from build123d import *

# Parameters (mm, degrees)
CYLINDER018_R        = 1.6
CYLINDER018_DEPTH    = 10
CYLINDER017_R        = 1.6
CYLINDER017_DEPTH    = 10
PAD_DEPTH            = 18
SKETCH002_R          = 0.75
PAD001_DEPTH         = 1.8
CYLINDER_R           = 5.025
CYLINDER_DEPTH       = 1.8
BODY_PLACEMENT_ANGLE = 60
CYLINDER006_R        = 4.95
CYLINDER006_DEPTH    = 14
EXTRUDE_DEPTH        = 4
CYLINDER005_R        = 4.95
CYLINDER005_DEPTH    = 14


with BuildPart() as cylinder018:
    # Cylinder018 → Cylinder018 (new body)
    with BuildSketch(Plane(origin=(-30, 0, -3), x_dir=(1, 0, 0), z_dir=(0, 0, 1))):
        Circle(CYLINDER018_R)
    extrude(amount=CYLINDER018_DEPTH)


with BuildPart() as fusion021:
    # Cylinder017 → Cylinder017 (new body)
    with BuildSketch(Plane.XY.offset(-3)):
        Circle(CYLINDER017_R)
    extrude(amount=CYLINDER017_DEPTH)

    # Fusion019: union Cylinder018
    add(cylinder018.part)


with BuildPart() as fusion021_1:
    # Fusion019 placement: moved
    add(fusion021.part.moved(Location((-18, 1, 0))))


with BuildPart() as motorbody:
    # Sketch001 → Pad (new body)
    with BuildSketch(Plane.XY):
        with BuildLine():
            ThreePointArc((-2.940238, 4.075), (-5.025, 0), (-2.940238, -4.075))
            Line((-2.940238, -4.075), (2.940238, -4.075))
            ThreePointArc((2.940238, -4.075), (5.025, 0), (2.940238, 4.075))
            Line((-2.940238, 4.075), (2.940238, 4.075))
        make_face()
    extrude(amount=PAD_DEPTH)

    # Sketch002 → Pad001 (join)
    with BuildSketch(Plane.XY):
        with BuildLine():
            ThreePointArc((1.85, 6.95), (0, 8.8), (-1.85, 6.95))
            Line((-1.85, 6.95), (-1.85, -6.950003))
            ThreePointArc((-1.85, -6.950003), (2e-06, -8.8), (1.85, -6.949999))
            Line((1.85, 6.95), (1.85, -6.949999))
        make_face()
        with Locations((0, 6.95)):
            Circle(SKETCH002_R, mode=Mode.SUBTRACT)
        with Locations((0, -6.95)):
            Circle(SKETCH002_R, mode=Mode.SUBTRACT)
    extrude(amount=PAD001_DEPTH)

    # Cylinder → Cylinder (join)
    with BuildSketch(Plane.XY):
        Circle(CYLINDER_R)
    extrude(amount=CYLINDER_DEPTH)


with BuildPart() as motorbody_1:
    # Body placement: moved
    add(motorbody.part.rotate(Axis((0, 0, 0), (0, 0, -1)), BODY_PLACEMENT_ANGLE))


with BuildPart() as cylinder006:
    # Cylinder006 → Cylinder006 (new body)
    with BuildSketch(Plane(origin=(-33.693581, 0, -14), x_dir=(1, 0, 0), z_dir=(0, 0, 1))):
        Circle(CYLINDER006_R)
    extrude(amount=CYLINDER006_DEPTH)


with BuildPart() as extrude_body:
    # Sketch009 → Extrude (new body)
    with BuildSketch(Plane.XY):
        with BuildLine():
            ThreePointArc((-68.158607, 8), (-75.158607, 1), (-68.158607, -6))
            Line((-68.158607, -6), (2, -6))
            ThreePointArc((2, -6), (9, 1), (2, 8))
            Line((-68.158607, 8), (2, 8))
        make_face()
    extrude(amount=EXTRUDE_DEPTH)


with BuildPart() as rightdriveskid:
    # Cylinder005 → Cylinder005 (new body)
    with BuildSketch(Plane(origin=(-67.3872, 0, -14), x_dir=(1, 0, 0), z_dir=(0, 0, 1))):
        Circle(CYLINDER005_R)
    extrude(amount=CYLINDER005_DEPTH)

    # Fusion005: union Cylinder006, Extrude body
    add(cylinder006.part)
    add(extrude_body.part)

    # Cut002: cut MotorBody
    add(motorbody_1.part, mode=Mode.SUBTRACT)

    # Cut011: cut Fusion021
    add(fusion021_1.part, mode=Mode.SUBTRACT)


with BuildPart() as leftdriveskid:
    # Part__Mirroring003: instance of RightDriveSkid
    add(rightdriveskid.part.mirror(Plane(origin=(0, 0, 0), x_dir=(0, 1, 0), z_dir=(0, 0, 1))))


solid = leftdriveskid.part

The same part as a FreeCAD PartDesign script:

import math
import FreeCAD as App
import Part
import Sketcher

V = App.Vector

doc = App.newDocument("Part")
body = doc.addObject("PartDesign::Body", "Body")

# Sketch on XY plane
sketch1 = doc.addObject("Sketcher::SketchObject", "Sketch")
body.addObject(sketch1)
sketch1.AttachmentSupport = (doc.XY_Plane, [""])
sketch1.MapMode = "FlatFace"
sketch1.AttachmentOffset = App.Placement(V(0, 0, -3), App.Rotation())
sketch1.addGeometry(Part.Circle(V(-30, 0, 0), V(0, 0, 1), 1.6), False)
sketch1.addConstraint([
    Sketcher.Constraint("PointOnObject", 0, 3, -1),
    Sketcher.Constraint("Diameter", 0, 3.2),
    Sketcher.Constraint("DistanceX", 0, 3, -1, 1, 30.0),
])
pad1 = doc.addObject("PartDesign::Pad", "Pad")
body.addObject(pad1)
pad1.Profile = sketch1
pad1.Length = 10
body2 = doc.addObject("PartDesign::Body", "Body001")
body2.AllowCompound = True

# Sketch on XY plane
sketch2 = doc.addObject("Sketcher::SketchObject", "Sketch001")
body2.addObject(sketch2)
sketch2.AttachmentSupport = (doc.getObject("XY_Plane001"), [""])
sketch2.MapMode = "FlatFace"
sketch2.AttachmentOffset = App.Placement(V(0, 0, -3), App.Rotation())
sketch2.addGeometry(Part.Circle(V(0, 0, 0), V(0, 0, 1), 1.6), False)
sketch2.addConstraint([
    Sketcher.Constraint("Coincident", 0, 3, -1, 1),
    Sketcher.Constraint("Diameter", 0, 3.2),
])
pad2 = doc.addObject("PartDesign::Pad", "Pad001")
body2.addObject(pad2)
pad2.Profile = sketch2
pad2.Length = 10
doc.recompute()

boolean = doc.addObject("PartDesign::Boolean", "Boolean")
body2.addObject(boolean)
boolean.Type = "Fuse"
boolean.addObjects([body])
body3 = doc.addObject("PartDesign::Body", "Body002")
body3.AllowCompound = True
doc.recompute()

body2.Placement = App.Placement(V(-18, 1, 0), App.Rotation(V(0, 0, 1), 0))
boolean2 = doc.addObject("PartDesign::Boolean", "Boolean001")
body3.addObject(boolean2)
boolean2.Type = "Fuse"
boolean2.addObjects([body2])
body4 = doc.addObject("PartDesign::Body", "Body003")

# Sketch on XY plane
sketch3 = doc.addObject("Sketcher::SketchObject", "Sketch002")
body4.addObject(sketch3)
sketch3.AttachmentSupport = (doc.getObject("XY_Plane003"), [""])
sketch3.MapMode = "FlatFace"
sketch3.addGeometry([
    Part.ArcOfCircle(Part.Circle(V(0, 0, 0), V(0, 0, 1), 5), math.radians(126), math.radians(234)),
    Part.LineSegment(V(-3, -4, 0), V(3, -4, 0)),
    Part.ArcOfCircle(Part.Circle(V(0, 0, 0), V(0, 0, 1), 5), math.radians(-54), math.radians(54)),
    Part.LineSegment(V(3, 4, 0), V(-3, 4, 0)),
], False)
sketch3.addConstraint([
    Sketcher.Constraint("Coincident", 0, 2, 1, 1),
    Sketcher.Constraint("Coincident", 1, 2, 2, 1),
    Sketcher.Constraint("Coincident", 2, 2, 3, 1),
    Sketcher.Constraint("Coincident", 3, 2, 0, 1),
    Sketcher.Constraint("Horizontal", 1),
    Sketcher.Constraint("Horizontal", 3),
    Sketcher.Constraint("Coincident", 0, 3, -1, 1),
    Sketcher.Constraint("Coincident", 2, 3, -1, 1),
    Sketcher.Constraint("Equal", 0, 2),
    Sketcher.Constraint("Vertical", 1, 2, 2, 2),
    Sketcher.Constraint("Radius", 0, 5.025),
    Sketcher.Constraint("DistanceY", 1, 2, 2, 2, 8.15),
])
pad3 = doc.addObject("PartDesign::Pad", "Pad002")
body4.addObject(pad3)
pad3.Profile = sketch3
pad3.Length = 18

# Sketch on XY plane
sketch4 = doc.addObject("Sketcher::SketchObject", "Sketch003")
body4.addObject(sketch4)
sketch4.AttachmentSupport = (doc.getObject("XY_Plane003"), [""])
sketch4.MapMode = "FlatFace"
sketch4.addGeometry([
    Part.ArcOfCircle(Part.Circle(V(0, 7, 0), V(0, 0, 1), 1.9), math.radians(0), math.radians(180)),  # 0
    Part.LineSegment(V(-1.9, 7, 0), V(-1.9, -7, 0)),  # 1
    Part.ArcOfCircle(Part.Circle(V(0, -7, 0), V(0, 0, 1), 1.9), math.radians(-180), math.radians(0)),  # 2
    Part.LineSegment(V(1.9, -6.9, 0), V(1.9, 7, 0)),  # 3
    Part.Circle(V(0, -7, 0), V(0, 0, 1), 0.8),  # 4
    Part.Circle(V(0, 7, 0), V(0, 0, 1), 0.8),  # 5
], False)
sketch4.addConstraint([
    Sketcher.Constraint("Tangent", 0, 2, 1, 1),
    Sketcher.Constraint("Tangent", 1, 2, 2, 1),
    Sketcher.Constraint("Tangent", 2, 2, 3, 1),
    Sketcher.Constraint("Tangent", 3, 2, 0, 1),
    Sketcher.Constraint("Vertical", 1),
    Sketcher.Constraint("Vertical", 3),
    Sketcher.Constraint("Coincident", 4, 3, 2, 3),
    Sketcher.Constraint("Coincident", 5, 3, 0, 3),
    Sketcher.Constraint("Equal", 4, 5),
    Sketcher.Constraint("Symmetric", 0, 3, 2, 3, -1, 1),
    Sketcher.Constraint("Diameter", 4, 1.5),
    Sketcher.Constraint("Radius", 0, 1.85),
    Sketcher.Constraint("DistanceY", 3, 1, 3, 2, 13.899999),
])
pad4 = doc.addObject("PartDesign::Pad", "Pad003")
body4.addObject(pad4)
pad4.Profile = sketch4
pad4.Length = 1.8

# Sketch on XY plane
sketch5 = doc.addObject("Sketcher::SketchObject", "Sketch004")
body4.addObject(sketch5)
sketch5.AttachmentSupport = (doc.getObject("XY_Plane003"), [""])
sketch5.MapMode = "FlatFace"
sketch5.addGeometry(Part.Circle(V(0, 0, 0), V(0, 0, 1), 5), False)
sketch5.addConstraint([
    Sketcher.Constraint("Coincident", 0, 3, -1, 1),
    Sketcher.Constraint("Diameter", 0, 10.05),
])
pad5 = doc.addObject("PartDesign::Pad", "Pad004")
body4.addObject(pad5)
pad5.Profile = sketch5
pad5.Length = 1.8
body5 = doc.addObject("PartDesign::Body", "Body004")
doc.recompute()

body4.Placement = App.Placement(V(0, 0, 0), App.Rotation(V(0, 0, -1), 60))
boolean3 = doc.addObject("PartDesign::Boolean", "Boolean002")
body5.addObject(boolean3)
boolean3.Type = "Fuse"
boolean3.addObjects([body4])
body6 = doc.addObject("PartDesign::Body", "Body005")

# Sketch on XY plane
sketch6 = doc.addObject("Sketcher::SketchObject", "Sketch005")
body6.addObject(sketch6)
sketch6.AttachmentSupport = (doc.getObject("XY_Plane005"), [""])
sketch6.MapMode = "FlatFace"
sketch6.AttachmentOffset = App.Placement(V(0, 0, -14), App.Rotation())
sketch6.addGeometry(Part.Circle(V(-33.7, 0, 0), V(0, 0, 1), 5), False)
sketch6.addConstraint([
    Sketcher.Constraint("PointOnObject", 0, 3, -1),
    Sketcher.Constraint("Diameter", 0, 9.9),
    Sketcher.Constraint("DistanceX", 0, 3, -1, 1, 33.693581),
])
pad6 = doc.addObject("PartDesign::Pad", "Pad005")
body6.addObject(pad6)
pad6.Profile = sketch6
pad6.Length = 14
body7 = doc.addObject("PartDesign::Body", "Body006")

# Sketch on XY plane
sketch7 = doc.addObject("Sketcher::SketchObject", "Sketch006")
body7.addObject(sketch7)
sketch7.AttachmentSupport = (doc.getObject("XY_Plane006"), [""])
sketch7.MapMode = "FlatFace"
sketch7.addGeometry([
    Part.ArcOfCircle(Part.Circle(V(-68, 1, 0), V(0, 0, 1), 7), math.radians(90), math.radians(270)),
    Part.LineSegment(V(-68, -6, 0), V(2, -6, 0)),
    Part.ArcOfCircle(Part.Circle(V(2, 1, 0), V(0, 0, 1), 7), math.radians(-90), math.radians(90)),
    Part.LineSegment(V(2, 8, 0), V(-68, 8, 0)),
], False)
sketch7.addConstraint([
    Sketcher.Constraint("Tangent", 0, 2, 1, 1),
    Sketcher.Constraint("Tangent", 1, 2, 2, 1),
    Sketcher.Constraint("Tangent", 2, 2, 3, 1),
    Sketcher.Constraint("Tangent", 3, 2, 0, 1),
    Sketcher.Constraint("Horizontal", 1),
    Sketcher.Constraint("Horizontal", 3),
    Sketcher.Constraint("Radius", 0, 7.0),
    Sketcher.Constraint("DistanceY", -1, 1, 0, 3, 1.0),
    Sketcher.Constraint("DistanceX", -1, 1, 2, 3, 2.0),
    Sketcher.Constraint("DistanceX", 1, 1, 1, 2, 70.158607),
])
pad7 = doc.addObject("PartDesign::Pad", "Pad006")
body7.addObject(pad7)
pad7.Profile = sketch7
pad7.Length = 4
body8 = doc.addObject("PartDesign::Body", "Body007")
body8.AllowCompound = True

# Sketch on XY plane
sketch8 = doc.addObject("Sketcher::SketchObject", "Sketch007")
body8.addObject(sketch8)
sketch8.AttachmentSupport = (doc.getObject("XY_Plane007"), [""])
sketch8.MapMode = "FlatFace"
sketch8.AttachmentOffset = App.Placement(V(0, 0, -14), App.Rotation())
sketch8.addGeometry(Part.Circle(V(-67.4, 0, 0), V(0, 0, 1), 5), False)
sketch8.addConstraint([
    Sketcher.Constraint("PointOnObject", 0, 3, -1),
    Sketcher.Constraint("Diameter", 0, 9.9),
    Sketcher.Constraint("DistanceX", 0, 3, -1, 1, 67.3872),
])
pad8 = doc.addObject("PartDesign::Pad", "Pad007")
body8.addObject(pad8)
pad8.Profile = sketch8
pad8.Length = 14
doc.recompute()

boolean4 = doc.addObject("PartDesign::Boolean", "Boolean003")
body8.addObject(boolean4)
boolean4.Type = "Fuse"
boolean4.addObjects([body6])
doc.recompute()

boolean5 = doc.addObject("PartDesign::Boolean", "Boolean004")
body8.addObject(boolean5)
boolean5.Type = "Fuse"
boolean5.addObjects([body7])
doc.recompute()

boolean6 = doc.addObject("PartDesign::Boolean", "Boolean005")
body8.addObject(boolean6)
boolean6.Type = "Cut"
boolean6.addObjects([body5])
doc.recompute()

boolean7 = doc.addObject("PartDesign::Boolean", "Boolean006")
body8.addObject(boolean7)
boolean7.Type = "Cut"
boolean7.addObjects([body3])
body9 = doc.addObject("PartDesign::Body", "Body008")
doc.recompute()

mirroring = doc.addObject("Part::Mirroring", "Mirroring")
mirroring.Source = body8
mirroring.Base = V(0, 0, 0)
mirroring.Normal = V(0, 0, 1)
body9.BaseFeature = mirroring
doc.recompute()
body8.Visibility = False
mirroring.Visibility = False

doc.recompute()
